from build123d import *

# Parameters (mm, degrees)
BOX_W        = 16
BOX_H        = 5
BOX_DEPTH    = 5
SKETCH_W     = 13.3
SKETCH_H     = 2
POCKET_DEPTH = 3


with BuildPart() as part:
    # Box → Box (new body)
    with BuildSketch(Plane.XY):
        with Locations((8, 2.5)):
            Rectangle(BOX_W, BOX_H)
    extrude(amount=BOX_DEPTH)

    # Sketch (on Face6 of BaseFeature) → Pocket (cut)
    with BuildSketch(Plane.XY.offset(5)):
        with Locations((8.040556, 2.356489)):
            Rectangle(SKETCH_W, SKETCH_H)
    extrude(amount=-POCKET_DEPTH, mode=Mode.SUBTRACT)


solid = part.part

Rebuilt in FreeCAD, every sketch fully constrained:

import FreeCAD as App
import Part
import Sketcher

V = App.Vector
Q = App.Units.Quantity

doc = App.newDocument("Part")
body = doc.addObject("PartDesign::Body", "Body")

# Sketch on XY plane
sketch1 = body.newObject("Sketcher::SketchObject", "Sketch")
sketch1.AttachmentSupport = (doc.getObject("XY_Plane"), [""])
sketch1.MapMode = "FlatFace"
sketch1.addGeometry(Part.LineSegment(V(0, 5, 0), V(0, 0, 0)), False)
sketch1.addGeometry(Part.LineSegment(V(0, 0, 0), V(16, 0, 0)), False)
sketch1.addGeometry(Part.LineSegment(V(16, 0, 0), V(16, 5, 0)), False)
sketch1.addGeometry(Part.LineSegment(V(16, 5, 0), V(0, 5, 0)), False)
sketch1.addConstraint(Sketcher.Constraint("Coincident", 0, 2, 1, 1))
sketch1.addConstraint(Sketcher.Constraint("Coincident", 1, 2, 2, 1))
sketch1.addConstraint(Sketcher.Constraint("Coincident", 2, 2, 3, 1))
sketch1.addConstraint(Sketcher.Constraint("Coincident", 3, 2, 0, 1))
sketch1.addConstraint(Sketcher.Constraint("Vertical", 0))
sketch1.addConstraint(Sketcher.Constraint("Horizontal", 1))
sketch1.addConstraint(Sketcher.Constraint("Vertical", 2))
sketch1.addConstraint(Sketcher.Constraint("Horizontal", 3))
sketch1.addConstraint(Sketcher.Constraint("Coincident", 0, 2, -1, 1))
sketch1.addConstraint(Sketcher.Constraint("DistanceX", 1, 1, 1, 2, Q("16 mm")))
sketch1.addConstraint(Sketcher.Constraint("DistanceY", 0, 2, 0, 1, Q("5 mm")))
pad1 = body.newObject("PartDesign::Pad", "Pad")
pad1.Profile = sketch1
pad1.Length = 5

# Sketch on XY plane
sketch2 = body.newObject("Sketcher::SketchObject", "Sketch001")
sketch2.AttachmentSupport = (doc.getObject("XY_Plane"), [""])
sketch2.MapMode = "FlatFace"
sketch2.AttachmentOffset = App.Placement(V(0, 0, 5), App.Rotation())
sketch2.addGeometry(Part.LineSegment(V(1.4, 3.4, 0), V(1.4, 1.4, 0)), False)
sketch2.addGeometry(Part.LineSegment(V(1.4, 1.4, 0), V(14.7, 1.4, 0)), False)
sketch2.addGeometry(Part.LineSegment(V(14.7, 1.4, 0), V(14.7, 3.4, 0)), False)
sketch2.addGeometry(Part.LineSegment(V(14.7, 3.4, 0), V(1.4, 3.4, 0)), False)
sketch2.addConstraint(Sketcher.Constraint("Coincident", 0, 2, 1, 1))
sketch2.addConstraint(Sketcher.Constraint("Coincident", 1, 2, 2, 1))
sketch2.addConstraint(Sketcher.Constraint("Coincident", 2, 2, 3, 1))
sketch2.addConstraint(Sketcher.Constraint("Coincident", 3, 2, 0, 1))
sketch2.addConstraint(Sketcher.Constraint("Vertical", 0))
sketch2.addConstraint(Sketcher.Constraint("Horizontal", 1))
sketch2.addConstraint(Sketcher.Constraint("Vertical", 2))
sketch2.addConstraint(Sketcher.Constraint("Horizontal", 3))
sketch2.addConstraint(Sketcher.Constraint("DistanceY", 0, 2, 0, 1, Q("2 mm")))
sketch2.addConstraint(Sketcher.Constraint("DistanceX", 1, 1, 1, 2, Q("13.3 mm")))
sketch2.addConstraint(Sketcher.Constraint("DistanceY", -1, 1, 0, 2, Q("1.356489 mm")))
sketch2.addConstraint(Sketcher.Constraint("DistanceX", -1, 1, 0, 2, Q("1.390556 mm")))
pocket1 = body.newObject("PartDesign::Pocket", "Pocket")
pocket1.Profile = sketch2
pocket1.Length = 3

doc.recompute()
